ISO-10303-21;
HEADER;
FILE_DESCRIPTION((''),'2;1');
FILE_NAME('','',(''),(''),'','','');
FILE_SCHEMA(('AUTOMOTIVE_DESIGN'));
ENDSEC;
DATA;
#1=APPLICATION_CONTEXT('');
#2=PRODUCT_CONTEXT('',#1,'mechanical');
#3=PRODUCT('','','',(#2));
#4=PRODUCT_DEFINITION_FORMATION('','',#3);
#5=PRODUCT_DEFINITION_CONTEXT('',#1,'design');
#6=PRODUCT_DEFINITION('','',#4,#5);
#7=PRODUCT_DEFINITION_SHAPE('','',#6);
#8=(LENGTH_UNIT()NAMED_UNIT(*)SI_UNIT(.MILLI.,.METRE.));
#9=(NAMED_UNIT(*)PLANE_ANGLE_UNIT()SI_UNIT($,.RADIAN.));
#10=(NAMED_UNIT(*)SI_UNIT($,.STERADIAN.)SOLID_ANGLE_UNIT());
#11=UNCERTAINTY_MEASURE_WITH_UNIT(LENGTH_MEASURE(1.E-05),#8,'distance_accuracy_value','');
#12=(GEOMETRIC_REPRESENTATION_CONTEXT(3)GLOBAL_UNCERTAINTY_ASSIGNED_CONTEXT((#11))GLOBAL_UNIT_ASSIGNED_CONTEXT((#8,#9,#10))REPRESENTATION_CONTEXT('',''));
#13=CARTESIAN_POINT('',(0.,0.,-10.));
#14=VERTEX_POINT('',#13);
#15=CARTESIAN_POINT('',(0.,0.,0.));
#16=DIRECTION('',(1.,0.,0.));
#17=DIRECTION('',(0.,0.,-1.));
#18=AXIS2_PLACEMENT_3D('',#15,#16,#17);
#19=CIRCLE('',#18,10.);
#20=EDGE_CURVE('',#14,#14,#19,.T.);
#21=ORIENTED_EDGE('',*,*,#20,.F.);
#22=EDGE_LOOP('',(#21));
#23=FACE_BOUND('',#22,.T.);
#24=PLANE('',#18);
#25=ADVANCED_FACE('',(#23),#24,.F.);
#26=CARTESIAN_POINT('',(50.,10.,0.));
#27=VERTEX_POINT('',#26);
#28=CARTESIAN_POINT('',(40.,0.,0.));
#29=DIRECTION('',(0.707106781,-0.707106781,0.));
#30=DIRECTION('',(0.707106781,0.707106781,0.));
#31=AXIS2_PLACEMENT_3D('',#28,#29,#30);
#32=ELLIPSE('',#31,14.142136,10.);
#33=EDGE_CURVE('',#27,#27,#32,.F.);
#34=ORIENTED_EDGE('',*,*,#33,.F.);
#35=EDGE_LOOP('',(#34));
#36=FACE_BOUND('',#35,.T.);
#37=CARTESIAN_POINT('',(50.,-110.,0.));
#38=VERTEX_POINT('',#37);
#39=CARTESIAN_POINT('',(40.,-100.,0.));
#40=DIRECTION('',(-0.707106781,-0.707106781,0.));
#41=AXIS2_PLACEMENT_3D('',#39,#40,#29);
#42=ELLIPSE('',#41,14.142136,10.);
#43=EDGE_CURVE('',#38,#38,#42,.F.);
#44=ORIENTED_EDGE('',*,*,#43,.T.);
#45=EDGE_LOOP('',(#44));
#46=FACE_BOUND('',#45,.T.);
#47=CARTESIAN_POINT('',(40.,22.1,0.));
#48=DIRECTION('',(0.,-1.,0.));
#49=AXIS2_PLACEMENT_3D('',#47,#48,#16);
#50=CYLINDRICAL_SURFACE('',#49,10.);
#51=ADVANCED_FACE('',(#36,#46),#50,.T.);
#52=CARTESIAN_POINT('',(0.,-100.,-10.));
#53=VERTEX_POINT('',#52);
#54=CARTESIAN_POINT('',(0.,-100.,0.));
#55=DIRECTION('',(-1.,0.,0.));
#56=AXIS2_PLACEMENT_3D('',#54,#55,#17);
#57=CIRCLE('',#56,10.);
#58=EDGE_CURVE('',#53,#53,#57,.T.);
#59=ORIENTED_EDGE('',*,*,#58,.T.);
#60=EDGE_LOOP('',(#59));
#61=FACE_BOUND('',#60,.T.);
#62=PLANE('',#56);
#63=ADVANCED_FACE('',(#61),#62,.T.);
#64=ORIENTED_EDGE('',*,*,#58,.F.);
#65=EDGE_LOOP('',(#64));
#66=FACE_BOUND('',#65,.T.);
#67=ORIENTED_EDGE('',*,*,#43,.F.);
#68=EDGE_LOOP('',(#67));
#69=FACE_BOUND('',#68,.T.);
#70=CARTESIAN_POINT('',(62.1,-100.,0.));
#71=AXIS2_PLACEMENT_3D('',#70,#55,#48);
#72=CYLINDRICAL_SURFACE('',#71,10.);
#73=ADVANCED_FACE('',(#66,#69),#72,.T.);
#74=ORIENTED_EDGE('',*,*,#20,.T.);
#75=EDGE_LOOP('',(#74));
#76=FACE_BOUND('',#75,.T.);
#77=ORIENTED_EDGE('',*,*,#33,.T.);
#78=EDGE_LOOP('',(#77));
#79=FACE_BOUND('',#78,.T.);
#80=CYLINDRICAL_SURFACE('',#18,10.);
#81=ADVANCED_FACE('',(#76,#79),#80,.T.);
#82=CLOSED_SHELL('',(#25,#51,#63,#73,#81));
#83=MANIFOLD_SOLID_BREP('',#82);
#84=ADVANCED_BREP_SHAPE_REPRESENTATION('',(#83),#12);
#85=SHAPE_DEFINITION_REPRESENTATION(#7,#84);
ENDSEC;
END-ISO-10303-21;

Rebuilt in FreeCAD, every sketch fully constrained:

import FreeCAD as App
import Part
import Sketcher
from FreeCAD import Vector

doc = App.newDocument("Part")
params = doc.addObject("Spreadsheet::Sheet", "Params")
for row, (alias, value) in enumerate([
    ("sketch1_diameter", "20 mm"),
    ("sketch2_width", "40 mm"),
    ("sketch2_height", "100 mm"),
], start=1):
    params.set(f"A{row}", alias)
    params.set(f"B{row}", "=" + value)
    params.setAlias(f"B{row}", alias)

body = doc.addObject("PartDesign::Body", "Body")

# Sketch on YZ plane
sketch1 = doc.addObject("Sketcher::SketchObject", "Sketch")
body.addObject(sketch1)
sketch1.AttachmentSupport = (doc.YZ_Plane, [""])
sketch1.MapMode = "FlatFace"
sketch1.addGeometry(Part.Circle(Vector(0, 0, 0), Vector(0, 0, 1), 10), False)
sketch1.addConstraint([
    Sketcher.Constraint("Coincident", 0, 3, -1, 1),
    Sketcher.Constraint("Diameter", 0, 20.0),
])
sketch1.setExpression("Constraints[1]", "Params.sketch1_diameter")

# Sketch on XY plane
sketch2 = doc.addObject("Sketcher::SketchObject", "Sketch001")
body.addObject(sketch2)
sketch2.AttachmentSupport = (doc.XY_Plane, [""])
sketch2.MapMode = "FlatFace"
sketch2.addGeometry([
    Part.LineSegment(Vector(0, 0, 0), Vector(40, 0, 0)),
    Part.LineSegment(Vector(40, 0, 0), Vector(40, -100, 0)),
    Part.LineSegment(Vector(40, -100, 0), Vector(0, -100, 0)),
], False)
sketch2.addConstraint([
    Sketcher.Constraint("Coincident", 0, 2, 1, 1),
    Sketcher.Constraint("Coincident", 1, 2, 2, 1),
    Sketcher.Constraint("Horizontal", 0),
    Sketcher.Constraint("Vertical", 1),
    Sketcher.Constraint("Horizontal", 2),
    Sketcher.Constraint("Coincident", 0, 1, -1, 1),
    Sketcher.Constraint("PointOnObject", 2, 2, -2),
    Sketcher.Constraint("DistanceX", 0, 1, 0, 2, 40.0),
    Sketcher.Constraint("DistanceY", 1, 2, 1, 1, 100.0),
])
sketch2.setExpression("Constraints[7]", "Params.sketch2_width")
sketch2.setExpression("Constraints[8]", "Params.sketch2_height")
doc.recompute()

additivepipe = doc.addObject("PartDesign::AdditivePipe", "AdditivePipe")
body.addObject(additivepipe)
additivepipe.Profile = sketch1
additivepipe.Spine = (sketch2, ["Edge1", "Edge2", "Edge3"])
additivepipe.Transition = "Right corner"

doc.recompute()
